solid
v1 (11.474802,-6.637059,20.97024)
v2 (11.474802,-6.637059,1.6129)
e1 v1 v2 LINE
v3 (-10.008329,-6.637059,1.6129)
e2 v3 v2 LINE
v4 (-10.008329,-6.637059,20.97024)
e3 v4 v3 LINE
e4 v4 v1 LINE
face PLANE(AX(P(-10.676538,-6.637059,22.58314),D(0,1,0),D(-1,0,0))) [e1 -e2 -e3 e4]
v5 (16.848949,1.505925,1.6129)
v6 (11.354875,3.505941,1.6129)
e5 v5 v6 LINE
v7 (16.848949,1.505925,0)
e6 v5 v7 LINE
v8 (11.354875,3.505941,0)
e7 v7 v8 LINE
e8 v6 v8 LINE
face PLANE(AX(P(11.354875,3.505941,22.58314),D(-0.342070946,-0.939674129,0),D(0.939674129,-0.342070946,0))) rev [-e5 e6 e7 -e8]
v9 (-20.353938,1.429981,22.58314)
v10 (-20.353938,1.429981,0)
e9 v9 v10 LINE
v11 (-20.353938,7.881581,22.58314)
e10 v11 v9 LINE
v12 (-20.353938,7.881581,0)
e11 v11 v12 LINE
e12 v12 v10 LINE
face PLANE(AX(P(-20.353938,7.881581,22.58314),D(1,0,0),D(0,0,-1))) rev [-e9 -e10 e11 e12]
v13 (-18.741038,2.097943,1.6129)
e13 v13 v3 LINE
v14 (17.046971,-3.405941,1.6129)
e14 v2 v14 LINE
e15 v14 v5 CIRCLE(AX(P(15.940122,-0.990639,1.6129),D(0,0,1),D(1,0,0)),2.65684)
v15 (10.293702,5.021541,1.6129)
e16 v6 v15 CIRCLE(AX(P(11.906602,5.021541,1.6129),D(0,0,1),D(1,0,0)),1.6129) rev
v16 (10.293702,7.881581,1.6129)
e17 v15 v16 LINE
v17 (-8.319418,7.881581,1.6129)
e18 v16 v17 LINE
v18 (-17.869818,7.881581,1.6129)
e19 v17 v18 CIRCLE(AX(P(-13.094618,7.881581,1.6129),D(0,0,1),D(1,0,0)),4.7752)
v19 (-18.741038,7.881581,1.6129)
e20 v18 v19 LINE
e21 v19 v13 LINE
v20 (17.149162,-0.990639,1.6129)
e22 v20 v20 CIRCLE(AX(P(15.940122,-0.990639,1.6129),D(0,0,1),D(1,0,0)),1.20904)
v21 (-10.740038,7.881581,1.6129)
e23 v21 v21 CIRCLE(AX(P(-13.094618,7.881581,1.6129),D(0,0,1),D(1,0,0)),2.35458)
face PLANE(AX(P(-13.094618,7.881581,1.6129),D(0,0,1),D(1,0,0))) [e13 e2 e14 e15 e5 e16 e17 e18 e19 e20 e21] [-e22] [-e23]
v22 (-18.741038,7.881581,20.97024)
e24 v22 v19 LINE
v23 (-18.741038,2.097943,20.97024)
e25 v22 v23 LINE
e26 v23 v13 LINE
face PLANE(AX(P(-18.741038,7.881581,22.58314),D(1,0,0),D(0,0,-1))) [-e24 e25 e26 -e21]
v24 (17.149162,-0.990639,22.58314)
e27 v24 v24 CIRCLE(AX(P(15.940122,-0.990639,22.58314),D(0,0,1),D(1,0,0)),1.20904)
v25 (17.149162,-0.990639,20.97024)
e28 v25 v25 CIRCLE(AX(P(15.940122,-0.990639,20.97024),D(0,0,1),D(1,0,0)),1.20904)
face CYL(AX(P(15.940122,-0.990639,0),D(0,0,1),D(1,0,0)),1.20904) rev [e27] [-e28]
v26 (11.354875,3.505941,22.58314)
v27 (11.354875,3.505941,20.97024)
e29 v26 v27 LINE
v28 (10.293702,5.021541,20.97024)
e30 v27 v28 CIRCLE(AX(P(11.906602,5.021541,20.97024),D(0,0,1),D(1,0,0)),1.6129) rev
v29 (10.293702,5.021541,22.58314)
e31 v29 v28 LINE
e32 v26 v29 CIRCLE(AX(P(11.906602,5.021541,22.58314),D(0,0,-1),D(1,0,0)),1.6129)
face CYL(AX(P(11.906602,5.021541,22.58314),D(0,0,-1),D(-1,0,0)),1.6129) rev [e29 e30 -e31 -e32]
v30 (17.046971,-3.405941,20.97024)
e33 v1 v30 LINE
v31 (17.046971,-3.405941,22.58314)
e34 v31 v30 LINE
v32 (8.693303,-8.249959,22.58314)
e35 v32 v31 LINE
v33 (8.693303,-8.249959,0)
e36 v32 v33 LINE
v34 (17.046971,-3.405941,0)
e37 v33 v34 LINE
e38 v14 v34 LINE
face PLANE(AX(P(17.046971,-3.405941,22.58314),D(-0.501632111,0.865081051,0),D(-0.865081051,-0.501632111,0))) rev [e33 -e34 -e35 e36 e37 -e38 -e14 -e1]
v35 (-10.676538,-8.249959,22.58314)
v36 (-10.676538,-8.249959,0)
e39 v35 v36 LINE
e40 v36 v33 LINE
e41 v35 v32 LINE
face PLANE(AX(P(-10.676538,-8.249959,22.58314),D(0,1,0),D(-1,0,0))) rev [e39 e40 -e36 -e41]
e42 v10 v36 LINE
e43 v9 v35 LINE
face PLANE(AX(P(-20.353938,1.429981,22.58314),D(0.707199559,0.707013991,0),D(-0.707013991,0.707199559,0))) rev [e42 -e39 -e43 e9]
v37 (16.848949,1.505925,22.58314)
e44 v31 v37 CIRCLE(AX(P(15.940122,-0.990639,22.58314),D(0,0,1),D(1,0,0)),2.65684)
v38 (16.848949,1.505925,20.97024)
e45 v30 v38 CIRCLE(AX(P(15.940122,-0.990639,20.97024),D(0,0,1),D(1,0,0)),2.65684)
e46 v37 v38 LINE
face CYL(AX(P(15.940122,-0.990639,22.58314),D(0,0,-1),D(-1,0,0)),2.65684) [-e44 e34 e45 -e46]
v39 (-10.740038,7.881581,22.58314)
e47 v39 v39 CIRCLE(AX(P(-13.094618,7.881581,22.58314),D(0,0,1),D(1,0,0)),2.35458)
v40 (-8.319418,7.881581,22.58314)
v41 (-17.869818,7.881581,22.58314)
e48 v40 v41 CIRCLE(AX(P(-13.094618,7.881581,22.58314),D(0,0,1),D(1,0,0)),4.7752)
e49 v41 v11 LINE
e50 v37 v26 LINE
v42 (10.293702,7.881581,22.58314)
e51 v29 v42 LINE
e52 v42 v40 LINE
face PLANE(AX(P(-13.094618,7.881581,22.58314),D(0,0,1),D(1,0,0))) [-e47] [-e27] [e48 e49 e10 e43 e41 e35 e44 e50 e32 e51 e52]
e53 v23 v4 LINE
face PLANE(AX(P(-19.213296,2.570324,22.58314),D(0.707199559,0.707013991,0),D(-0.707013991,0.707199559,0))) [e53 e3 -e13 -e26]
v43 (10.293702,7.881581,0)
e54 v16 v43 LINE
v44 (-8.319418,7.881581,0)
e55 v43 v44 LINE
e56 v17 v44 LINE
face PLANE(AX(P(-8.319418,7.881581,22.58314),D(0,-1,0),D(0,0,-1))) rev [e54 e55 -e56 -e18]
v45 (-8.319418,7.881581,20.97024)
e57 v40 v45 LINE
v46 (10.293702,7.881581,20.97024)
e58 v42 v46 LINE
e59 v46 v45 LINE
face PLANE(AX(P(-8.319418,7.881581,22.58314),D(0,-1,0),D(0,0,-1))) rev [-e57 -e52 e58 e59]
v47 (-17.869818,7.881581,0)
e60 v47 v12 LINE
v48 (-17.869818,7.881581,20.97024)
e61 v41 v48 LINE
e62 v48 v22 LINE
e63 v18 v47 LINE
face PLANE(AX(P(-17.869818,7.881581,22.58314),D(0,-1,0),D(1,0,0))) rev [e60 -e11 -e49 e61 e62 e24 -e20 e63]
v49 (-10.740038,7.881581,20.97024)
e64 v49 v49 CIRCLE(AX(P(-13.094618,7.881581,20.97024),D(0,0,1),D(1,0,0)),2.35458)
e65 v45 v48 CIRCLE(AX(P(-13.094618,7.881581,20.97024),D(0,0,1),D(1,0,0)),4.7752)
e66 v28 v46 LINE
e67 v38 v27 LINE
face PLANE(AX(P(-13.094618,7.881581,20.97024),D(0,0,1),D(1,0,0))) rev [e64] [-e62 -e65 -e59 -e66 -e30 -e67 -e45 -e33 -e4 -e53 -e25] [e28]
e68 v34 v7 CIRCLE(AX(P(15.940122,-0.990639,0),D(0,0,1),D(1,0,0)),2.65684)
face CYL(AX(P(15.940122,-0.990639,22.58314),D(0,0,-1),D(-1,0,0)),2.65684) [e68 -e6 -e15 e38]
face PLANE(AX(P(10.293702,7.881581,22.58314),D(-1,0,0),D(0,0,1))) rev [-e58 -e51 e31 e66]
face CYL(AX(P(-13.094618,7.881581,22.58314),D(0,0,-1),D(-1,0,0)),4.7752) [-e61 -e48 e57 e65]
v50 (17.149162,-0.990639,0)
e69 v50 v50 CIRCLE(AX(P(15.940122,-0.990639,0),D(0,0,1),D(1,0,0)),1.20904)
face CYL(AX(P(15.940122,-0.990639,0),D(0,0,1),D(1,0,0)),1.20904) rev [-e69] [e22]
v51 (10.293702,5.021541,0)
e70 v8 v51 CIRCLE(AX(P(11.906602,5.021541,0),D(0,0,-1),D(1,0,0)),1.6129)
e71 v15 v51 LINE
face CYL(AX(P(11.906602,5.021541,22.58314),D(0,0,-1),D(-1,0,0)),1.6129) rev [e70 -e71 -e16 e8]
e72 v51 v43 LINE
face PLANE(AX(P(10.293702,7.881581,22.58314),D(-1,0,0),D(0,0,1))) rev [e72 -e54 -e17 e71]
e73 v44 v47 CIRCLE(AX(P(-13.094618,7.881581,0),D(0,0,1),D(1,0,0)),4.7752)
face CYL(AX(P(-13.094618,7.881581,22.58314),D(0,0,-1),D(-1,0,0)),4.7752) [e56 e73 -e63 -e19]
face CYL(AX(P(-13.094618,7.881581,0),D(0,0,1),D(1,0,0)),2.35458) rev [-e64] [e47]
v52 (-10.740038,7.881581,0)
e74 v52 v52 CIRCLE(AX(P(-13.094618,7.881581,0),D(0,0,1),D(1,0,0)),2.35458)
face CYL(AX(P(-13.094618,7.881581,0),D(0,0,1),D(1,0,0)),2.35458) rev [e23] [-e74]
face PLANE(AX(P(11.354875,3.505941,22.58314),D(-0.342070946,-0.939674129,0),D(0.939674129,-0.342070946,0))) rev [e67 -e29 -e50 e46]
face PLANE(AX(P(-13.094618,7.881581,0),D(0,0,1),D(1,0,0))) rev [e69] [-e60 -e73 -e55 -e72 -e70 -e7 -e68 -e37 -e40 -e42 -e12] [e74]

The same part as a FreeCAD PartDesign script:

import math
import FreeCAD as App
import Part
import Sketcher
Q = App.Units.Quantity


def faces_at(feature, points):
    """Names of the faces that lie closest to the given points."""
    faces = feature.Shape.Faces
    near = lambda p: min(range(len(faces)), key=lambda i: faces[i].distToShape(Part.Vertex(*p))[0])
    return sorted({f"Face{near(p) + 1}" for p in points})

doc = App.newDocument("Part")
params = doc.addObject("Spreadsheet::Sheet", "Params")
for row, (alias, value) in enumerate([
    ("sketch1_radius", "0.188 in"),
    ("sketch1_height", "0.254 in"),
    ("pad1_length", "0.8891 in"),
    ("thickness_wall", "0.0635 in"),
], start=1):
    params.set(f"A{row}", alias)
    params.set(f"B{row}", "=" + value)
    params.setAlias(f"B{row}", alias)

body = doc.addObject("PartDesign::Body", "Body")

# Sketch on XY plane
sketch1 = body.newObject("Sketcher::SketchObject", "Sketch")
sketch1.AttachmentSupport = (doc.getObject("XY_Plane"), [""])
sketch1.MapMode = "FlatFace"
sketch1.addGeometry([
    Part.LineSegment(App.Vector(-17.869818, 7.881581, 0), App.Vector(-20.353938, 7.881581, 0)),  # 0
    Part.LineSegment(App.Vector(-20.353938, 7.881581, 0), App.Vector(-20.353938, 1.429981, 0)),  # 1
    Part.LineSegment(App.Vector(-20.353938, 1.429981, 0), App.Vector(-10.676538, -8.249959, 0)),  # 2
    Part.LineSegment(App.Vector(-10.676538, -8.249959, 0), App.Vector(8.693303, -8.249959, 0)),  # 3
    Part.LineSegment(App.Vector(8.693303, -8.249959, 0), App.Vector(17.046971, -3.405941, 0)),  # 4
    Part.ArcOfCircle(Part.Circle(App.Vector(15.940122, -0.990639, 0), App.Vector(0, 0, 1), 2.65684), math.radians(-65.379659), math.radians(69.996902)),  # 5
    Part.LineSegment(App.Vector(16.848949, 1.505925, 0), App.Vector(11.354875, 3.505941, 0)),  # 6
    Part.ArcOfCircle(Part.Circle(App.Vector(11.906602, 5.021541, 0), App.Vector(0, 0, 1), 1.6129), math.radians(180), math.radians(249.996902)),  # 7
    Part.LineSegment(App.Vector(10.293702, 5.021541, 0), App.Vector(10.293702, 7.881581, 0)),  # 8
    Part.LineSegment(App.Vector(10.293702, 7.881581, 0), App.Vector(-8.319418, 7.881581, 0)),  # 9
    Part.ArcOfCircle(Part.Circle(App.Vector(-13.094618, 7.881581, 0), App.Vector(0, 0, 1), 4.7752), math.radians(0), math.radians(180)),  # 10
], False)
sketch1.addConstraint([
    Sketcher.Constraint("Coincident", 0, 2, 1, 1),
    Sketcher.Constraint("Coincident", 1, 2, 2, 1),
    Sketcher.Constraint("Coincident", 2, 2, 3, 1),
    Sketcher.Constraint("Coincident", 3, 2, 4, 1),
    Sketcher.Constraint("Coincident", 4, 2, 5, 1),
    Sketcher.Constraint("Tangent", 5, 2, 6, 1),
    Sketcher.Constraint("Tangent", 6, 2, 7, 2),
    Sketcher.Constraint("Tangent", 7, 1, 8, 1),
    Sketcher.Constraint("Coincident", 8, 2, 9, 1),
    Sketcher.Constraint("Coincident", 9, 2, 10, 1),
    Sketcher.Constraint("Coincident", 10, 2, 0, 1),
    Sketcher.Constraint("Horizontal", 0),
    Sketcher.Constraint("Vertical", 1),
    Sketcher.Constraint("Horizontal", 3),
    Sketcher.Constraint("Vertical", 8),
    Sketcher.Constraint("Horizontal", 9),
    Sketcher.Constraint("Horizontal", 10, 3, 0, 2),
    Sketcher.Constraint("Horizontal", 0, 2, 8, 2),
    Sketcher.Constraint("Radius", 10, Q("0.188 in")),
    Sketcher.Constraint("Radius", 5, Q("0.1046 in")),
    Sketcher.Constraint("Radius", 7, Q("0.0635 in")),
    Sketcher.Constraint("DistanceY", 1, 2, 1, 1, Q("0.254 in")),
    Sketcher.Constraint("DistanceX", 0, 2, 0, 1, Q("0.0978 in")),
    Sketcher.Constraint("DistanceX", 9, 2, 9, 1, Q("0.7328 in")),
    Sketcher.Constraint("DistanceY", 8, 1, 8, 2, Q("0.1126 in")),
    Sketcher.Constraint("DistanceX", 1, 2, 2, 2, Q("0.381 in")),
    Sketcher.Constraint("DistanceX", 7, 3, 5, 3, Q("0.1588 in")),
    Sketcher.Constraint("DistanceY", 5, 3, 7, 3, Q("0.2367 in")),
    Sketcher.Constraint("DistanceY", 2, 2, 1, 2, Q("0.3811 in")),
    Sketcher.Constraint("DistanceX", 3, 1, 3, 2, 19.369841),
    Sketcher.Constraint("DistanceX", -1, 1, 7, 3, 11.906602),
    Sketcher.Constraint("DistanceY", 5, 3, -1, 1, 0.990639),
    Sketcher.Constraint("DistanceX", -1, 1, 4, 2, 17.046971),
])
sketch1.setExpression("Constraints[18]", "Params.sketch1_radius")
sketch1.setExpression("Constraints[21]", "Params.sketch1_height")
pad1 = body.newObject("PartDesign::Pad", "Pad")
pad1.Profile = sketch1
pad1.setExpression("Length", "Params.pad1_length")
doc.recompute()

thickness = body.newObject("PartDesign::Thickness", "Thickness")
thickness.Base = (pad1, faces_at(pad1, [
    (0.987, 7.882, 11.292),
    (10.294, 6.452, 11.292),
    (10.585, 4.096, 11.292),
    (14.102, 2.506, 11.292),
    (18.595, -0.884, 11.292),
    (12.87, -5.828, 11.292),
    (-19.112, 7.882, 11.292),
    (-13.095, 12.657, 11.292),
]))
thickness.setExpression("Value", "Params.thickness_wall")
thickness.Reversed = True
thickness.Join = "Intersection"

# Sketch on XY plane
sketch2 = body.newObject("Sketcher::SketchObject", "Sketch001")
sketch2.AttachmentSupport = (doc.getObject("XY_Plane"), [""])
sketch2.MapMode = "FlatFace"
sketch2.AttachmentOffset = App.Placement(App.Vector(0, 0, 0.8891 * 25.4), App.Rotation())
sketch2.addGeometry([
    Part.Circle(App.Vector(-13.094618, 7.881581, 0), App.Vector(0, 0, 1), 2.35458),
    Part.Circle(App.Vector(15.940122, -0.990639, 0), App.Vector(0, 0, 1), 1.20904),
], False)
sketch2.addConstraint([
    Sketcher.Constraint("Diameter", 0, Q("0.1854 in")),
    Sketcher.Constraint("Diameter", 1, Q("0.0952 in")),
    Sketcher.Constraint("DistanceX", 0, 3, 1, 3, Q("1.1431 in")),
    Sketcher.Constraint("DistanceY", 1, 3, 0, 3, Q("0.3493 in")),
    Sketcher.Constraint("DistanceX", 0, 3, -1, 1, 13.094618),
    Sketcher.Constraint("DistanceY", -1, 1, 0, 3, 7.881581),
])
pocket1 = body.newObject("PartDesign::Pocket", "Pocket")
pocket1.Profile = sketch2
pocket1.Type = "ThroughAll"

doc.recompute()
